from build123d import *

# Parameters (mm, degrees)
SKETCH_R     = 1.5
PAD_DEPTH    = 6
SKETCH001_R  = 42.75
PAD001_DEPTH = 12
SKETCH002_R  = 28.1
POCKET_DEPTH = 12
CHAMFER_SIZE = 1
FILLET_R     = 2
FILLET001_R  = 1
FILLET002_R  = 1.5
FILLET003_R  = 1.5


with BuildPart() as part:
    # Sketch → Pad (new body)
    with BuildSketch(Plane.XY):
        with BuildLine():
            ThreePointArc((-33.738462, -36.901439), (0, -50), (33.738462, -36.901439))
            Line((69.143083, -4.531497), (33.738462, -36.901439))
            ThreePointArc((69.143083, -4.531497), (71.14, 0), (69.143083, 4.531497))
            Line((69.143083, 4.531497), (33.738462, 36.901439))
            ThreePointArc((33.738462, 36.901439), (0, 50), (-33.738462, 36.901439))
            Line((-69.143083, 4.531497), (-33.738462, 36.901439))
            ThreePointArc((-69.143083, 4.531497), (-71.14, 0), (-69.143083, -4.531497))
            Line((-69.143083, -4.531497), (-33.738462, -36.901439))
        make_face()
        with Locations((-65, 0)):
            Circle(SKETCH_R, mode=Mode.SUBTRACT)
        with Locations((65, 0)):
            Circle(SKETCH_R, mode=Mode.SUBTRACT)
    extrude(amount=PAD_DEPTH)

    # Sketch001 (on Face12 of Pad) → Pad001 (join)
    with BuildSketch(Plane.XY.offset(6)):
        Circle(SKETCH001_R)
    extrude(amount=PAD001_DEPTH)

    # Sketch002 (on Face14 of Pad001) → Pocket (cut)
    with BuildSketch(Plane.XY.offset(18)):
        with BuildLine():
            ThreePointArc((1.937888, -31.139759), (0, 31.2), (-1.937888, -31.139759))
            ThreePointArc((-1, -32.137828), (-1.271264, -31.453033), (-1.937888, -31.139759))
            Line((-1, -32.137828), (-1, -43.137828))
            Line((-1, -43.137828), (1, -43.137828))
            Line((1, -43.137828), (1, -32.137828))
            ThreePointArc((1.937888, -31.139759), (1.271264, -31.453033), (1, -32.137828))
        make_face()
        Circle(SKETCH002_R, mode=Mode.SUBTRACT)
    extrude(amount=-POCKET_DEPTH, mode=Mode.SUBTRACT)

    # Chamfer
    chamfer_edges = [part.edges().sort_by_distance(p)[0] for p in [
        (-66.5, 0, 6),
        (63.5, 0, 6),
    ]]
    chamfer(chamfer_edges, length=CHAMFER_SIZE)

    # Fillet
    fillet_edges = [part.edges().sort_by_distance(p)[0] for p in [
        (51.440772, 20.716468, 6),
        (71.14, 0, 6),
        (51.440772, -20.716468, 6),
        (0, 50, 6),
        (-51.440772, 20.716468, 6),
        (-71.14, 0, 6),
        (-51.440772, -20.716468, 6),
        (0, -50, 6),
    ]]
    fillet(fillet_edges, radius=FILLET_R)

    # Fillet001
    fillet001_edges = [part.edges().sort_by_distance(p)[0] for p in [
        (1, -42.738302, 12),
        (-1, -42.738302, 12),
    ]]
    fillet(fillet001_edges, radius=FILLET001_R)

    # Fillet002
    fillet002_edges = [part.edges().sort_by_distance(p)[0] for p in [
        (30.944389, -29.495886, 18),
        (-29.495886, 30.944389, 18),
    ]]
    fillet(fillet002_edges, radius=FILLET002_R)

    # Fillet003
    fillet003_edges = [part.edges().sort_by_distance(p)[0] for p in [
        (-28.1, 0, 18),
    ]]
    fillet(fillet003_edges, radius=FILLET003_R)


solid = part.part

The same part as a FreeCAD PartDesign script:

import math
import FreeCAD as App
import Part
import Sketcher
from FreeCAD import Vector
Q = App.Units.Quantity


def edges_at(feature, points):
    """Names of the edges that pass closest to the given points."""
    edges = feature.Shape.Edges
    near = lambda p: min(range(len(edges)), key=lambda i: edges[i].distToShape(Part.Vertex(*p))[0])
    return sorted({f"Edge{near(p) + 1}" for p in points})

doc = App.newDocument("Part")
body = doc.addObject("PartDesign::Body", "Body")

# Sketch on XY plane
sketch1 = body.newObject("Sketcher::SketchObject", "Sketch")
sketch1.AttachmentSupport = (doc.getObject("XY_Plane"), [""])
sketch1.MapMode = "FlatFace"
sketch1.addGeometry(Part.ArcOfCircle(Part.Circle(Vector(0, 0, 0), Vector(0, 0, 1), 50), math.radians(-132), math.radians(-48)), False)
sketch1.addGeometry(Part.LineSegment(Vector(33.7, -36.9, 0), Vector(69.1, -4.5, 0)), False)
sketch1.addGeometry(Part.ArcOfCircle(Part.Circle(Vector(65, 0, 0), Vector(0, 0, 1), 6.1), math.radians(-48), math.radians(48)), False)
sketch1.addGeometry(Part.LineSegment(Vector(69.1, 4.5, 0), Vector(33.7, 36.9, 0)), False)
sketch1.addGeometry(Part.ArcOfCircle(Part.Circle(Vector(0, 0, 0), Vector(0, 0, 1), 50), math.radians(48), math.radians(132)), False)
sketch1.addGeometry(Part.LineSegment(Vector(-33.7, 36.9, 0), Vector(-69.1, 4.5, 0)), False)
sketch1.addGeometry(Part.ArcOfCircle(Part.Circle(Vector(-65, 0, 0), Vector(0, 0, 1), 6.1), math.radians(132), math.radians(228)), False)
sketch1.addGeometry(Part.LineSegment(Vector(-69.1, -4.5, 0), Vector(-33.7, -36.9, 0)), False)
sketch1.addGeometry(Part.Circle(Vector(-65, 0, 0), Vector(0, 0, 1), 1.5), False)
sketch1.addGeometry(Part.Circle(Vector(65, 0, 0), Vector(0, 0, 1), 1.5), False)
sketch1.addConstraint(Sketcher.Constraint("Tangent", 0, 2, 1, 1))
sketch1.addConstraint(Sketcher.Constraint("Tangent", 1, 2, 2, 1))
sketch1.addConstraint(Sketcher.Constraint("Tangent", 2, 2, 3, 1))
sketch1.addConstraint(Sketcher.Constraint("Tangent", 3, 2, 4, 1))
sketch1.addConstraint(Sketcher.Constraint("Tangent", 4, 2, 5, 1))
sketch1.addConstraint(Sketcher.Constraint("Tangent", 5, 2, 6, 1))
sketch1.addConstraint(Sketcher.Constraint("Tangent", 6, 2, 7, 1))
sketch1.addConstraint(Sketcher.Constraint("Tangent", 7, 2, 0, 1))
sketch1.addConstraint(Sketcher.Constraint("Coincident", 0, 3, -1, 1))
sketch1.addConstraint(Sketcher.Constraint("Coincident", 4, 3, -1, 1))
sketch1.addConstraint(Sketcher.Constraint("Coincident", 8, 3, 6, 3))
sketch1.addConstraint(Sketcher.Constraint("Coincident", 9, 3, 2, 3))
sketch1.addConstraint(Sketcher.Constraint("Equal", 0, 4))
sketch1.addConstraint(Sketcher.Constraint("Equal", 2, 6))
sketch1.addConstraint(Sketcher.Constraint("Equal", 8, 9))
sketch1.addConstraint(Sketcher.Constraint("Symmetric", 2, 3, 6, 3, -1, 1))
sketch1.addConstraint(Sketcher.Constraint("PointOnObject", 2, 3, -1))
sketch1.addConstraint(Sketcher.Constraint("Diameter", 8, Q("3 mm")))
sketch1.addConstraint(Sketcher.Constraint("Radius", 0, Q("50.000001 mm")))
sketch1.addConstraint(Sketcher.Constraint("Radius", 2, Q("6.14 mm")))
sketch1.addConstraint(Sketcher.Constraint("DistanceX", -1, 1, 2, 3, Q("65 mm")))
pad1 = body.newObject("PartDesign::Pad", "Pad")
pad1.Profile = sketch1
pad1.Length = 6

# Sketch on XY plane
sketch2 = body.newObject("Sketcher::SketchObject", "Sketch001")
sketch2.AttachmentSupport = (doc.getObject("XY_Plane"), [""])
sketch2.MapMode = "FlatFace"
sketch2.AttachmentOffset = App.Placement(Vector(0, 0, 6), App.Rotation())
sketch2.addGeometry(Part.Circle(Vector(0, 0, 0), Vector(0, 0, 1), 43), False)
sketch2.addConstraint(Sketcher.Constraint("Coincident", 0, 3, -1, 1))
sketch2.addConstraint(Sketcher.Constraint("Diameter", 0, Q("85.5 mm")))
pad2 = body.newObject("PartDesign::Pad", "Pad001")
pad2.Profile = sketch2
pad2.Length = 12

# Sketch on XY plane
sketch3 = body.newObject("Sketcher::SketchObject", "Sketch002")
sketch3.AttachmentSupport = (doc.getObject("XY_Plane"), [""])
sketch3.MapMode = "FlatFace"
sketch3.AttachmentOffset = App.Placement(Vector(0, 0, 18), App.Rotation())
sketch3.addGeometry(Part.ArcOfCircle(Part.Circle(Vector(0, 0, 0), Vector(0, 0, 1), 31.2), math.radians(-86), math.radians(266)), False)
sketch3.addGeometry(Part.ArcOfCircle(Part.Circle(Vector(-2, -32.1, 0), Vector(0, 0, 1), 1), math.radians(0), math.radians(86)), False)
sketch3.addGeometry(Part.LineSegment(Vector(-1, -32.1, 0), Vector(-1, -43.1, 0)), False)
sketch3.addGeometry(Part.LineSegment(Vector(-1, -43.1, 0), Vector(1, -43.1, 0)), False)
sketch3.addGeometry(Part.LineSegment(Vector(1, -43.1, 0), Vector(1, -32.1, 0)), False)
sketch3.addGeometry(Part.ArcOfCircle(Part.Circle(Vector(2, -32.1, 0), Vector(0, 0, 1), 1), math.radians(94), math.radians(180)), False)
sketch3.addGeometry(Part.Circle(Vector(0, 0, 0), Vector(0, 0, 1), 28.1), False)
sketch3.addConstraint(Sketcher.Constraint("Tangent", 0, 2, 1, 2))
sketch3.addConstraint(Sketcher.Constraint("Tangent", 1, 1, 2, 1))
sketch3.addConstraint(Sketcher.Constraint("Coincident", 2, 2, 3, 1))
sketch3.addConstraint(Sketcher.Constraint("Coincident", 3, 2, 4, 1))
sketch3.addConstraint(Sketcher.Constraint("Tangent", 4, 2, 5, 2))
sketch3.addConstraint(Sketcher.Constraint("Tangent", 5, 1, 0, 1))
sketch3.addConstraint(Sketcher.Constraint("Vertical", 2))
sketch3.addConstraint(Sketcher.Constraint("Horizontal", 3))
sketch3.addConstraint(Sketcher.Constraint("Vertical", 4))
sketch3.addConstraint(Sketcher.Constraint("Coincident", 0, 3, -1, 1))
sketch3.addConstraint(Sketcher.Constraint("Coincident", 6, 3, -1, 1))
sketch3.addConstraint(Sketcher.Constraint("Equal", 1, 5))
sketch3.addConstraint(Sketcher.Constraint("Horizontal", 1, 3, 5, 3))
sketch3.addConstraint(Sketcher.Constraint("Radius", 1, Q("0.999999 mm")))
sketch3.addConstraint(Sketcher.Constraint("Diameter", 6, Q("56.2 mm")))
sketch3.addConstraint(Sketcher.Constraint("Radius", 0, Q("31.2 mm")))
sketch3.addConstraint(Sketcher.Constraint("DistanceX", 3, 1, 3, 2, Q("2 mm")))
sketch3.addConstraint(Sketcher.Constraint("DistanceY", 2, 2, 2, 1, Q("11 mm")))
pocket1 = body.newObject("PartDesign::Pocket", "Pocket")
pocket1.Profile = sketch3
pocket1.Length = 12
doc.recompute()

chamfer = body.newObject("PartDesign::Chamfer", "Chamfer")
chamfer.Base = (pocket1, edges_at(pocket1, [(-66.5, 0, 6), (63.5, 0, 6)]))
chamfer.Size = 1
doc.recompute()

fillet = body.newObject("PartDesign::Fillet", "Fillet")
fillet.Base = (chamfer, edges_at(chamfer, [
    (51.441, 20.716, 6),
    (71.14, 0, 6),
    (51.441, -20.716, 6),
    (0, 50, 6),
    (-51.441, 20.716, 6),
    (-71.14, 0, 6),
    (-51.441, -20.716, 6),
    (0, -50, 6),
]))
fillet.Radius = 2
doc.recompute()

fillet2 = body.newObject("PartDesign::Fillet", "Fillet001")
fillet2.Base = (fillet, edges_at(fillet, [(1, -42.738, 12), (-1, -42.738, 12)]))
fillet2.Radius = 1
doc.recompute()

fillet3 = body.newObject("PartDesign::Fillet", "Fillet002")
fillet3.Base = (fillet2, edges_at(fillet2, [(30.944, -29.496, 18), (-29.496, 30.944, 18)]))
fillet3.Radius = 1.5
doc.recompute()

fillet4 = body.newObject("PartDesign::Fillet", "Fillet003")
fillet4.Base = (fillet3, edges_at(fillet3, [(-28.1, 0, 18)]))
fillet4.Radius = 1.5

doc.recompute()
